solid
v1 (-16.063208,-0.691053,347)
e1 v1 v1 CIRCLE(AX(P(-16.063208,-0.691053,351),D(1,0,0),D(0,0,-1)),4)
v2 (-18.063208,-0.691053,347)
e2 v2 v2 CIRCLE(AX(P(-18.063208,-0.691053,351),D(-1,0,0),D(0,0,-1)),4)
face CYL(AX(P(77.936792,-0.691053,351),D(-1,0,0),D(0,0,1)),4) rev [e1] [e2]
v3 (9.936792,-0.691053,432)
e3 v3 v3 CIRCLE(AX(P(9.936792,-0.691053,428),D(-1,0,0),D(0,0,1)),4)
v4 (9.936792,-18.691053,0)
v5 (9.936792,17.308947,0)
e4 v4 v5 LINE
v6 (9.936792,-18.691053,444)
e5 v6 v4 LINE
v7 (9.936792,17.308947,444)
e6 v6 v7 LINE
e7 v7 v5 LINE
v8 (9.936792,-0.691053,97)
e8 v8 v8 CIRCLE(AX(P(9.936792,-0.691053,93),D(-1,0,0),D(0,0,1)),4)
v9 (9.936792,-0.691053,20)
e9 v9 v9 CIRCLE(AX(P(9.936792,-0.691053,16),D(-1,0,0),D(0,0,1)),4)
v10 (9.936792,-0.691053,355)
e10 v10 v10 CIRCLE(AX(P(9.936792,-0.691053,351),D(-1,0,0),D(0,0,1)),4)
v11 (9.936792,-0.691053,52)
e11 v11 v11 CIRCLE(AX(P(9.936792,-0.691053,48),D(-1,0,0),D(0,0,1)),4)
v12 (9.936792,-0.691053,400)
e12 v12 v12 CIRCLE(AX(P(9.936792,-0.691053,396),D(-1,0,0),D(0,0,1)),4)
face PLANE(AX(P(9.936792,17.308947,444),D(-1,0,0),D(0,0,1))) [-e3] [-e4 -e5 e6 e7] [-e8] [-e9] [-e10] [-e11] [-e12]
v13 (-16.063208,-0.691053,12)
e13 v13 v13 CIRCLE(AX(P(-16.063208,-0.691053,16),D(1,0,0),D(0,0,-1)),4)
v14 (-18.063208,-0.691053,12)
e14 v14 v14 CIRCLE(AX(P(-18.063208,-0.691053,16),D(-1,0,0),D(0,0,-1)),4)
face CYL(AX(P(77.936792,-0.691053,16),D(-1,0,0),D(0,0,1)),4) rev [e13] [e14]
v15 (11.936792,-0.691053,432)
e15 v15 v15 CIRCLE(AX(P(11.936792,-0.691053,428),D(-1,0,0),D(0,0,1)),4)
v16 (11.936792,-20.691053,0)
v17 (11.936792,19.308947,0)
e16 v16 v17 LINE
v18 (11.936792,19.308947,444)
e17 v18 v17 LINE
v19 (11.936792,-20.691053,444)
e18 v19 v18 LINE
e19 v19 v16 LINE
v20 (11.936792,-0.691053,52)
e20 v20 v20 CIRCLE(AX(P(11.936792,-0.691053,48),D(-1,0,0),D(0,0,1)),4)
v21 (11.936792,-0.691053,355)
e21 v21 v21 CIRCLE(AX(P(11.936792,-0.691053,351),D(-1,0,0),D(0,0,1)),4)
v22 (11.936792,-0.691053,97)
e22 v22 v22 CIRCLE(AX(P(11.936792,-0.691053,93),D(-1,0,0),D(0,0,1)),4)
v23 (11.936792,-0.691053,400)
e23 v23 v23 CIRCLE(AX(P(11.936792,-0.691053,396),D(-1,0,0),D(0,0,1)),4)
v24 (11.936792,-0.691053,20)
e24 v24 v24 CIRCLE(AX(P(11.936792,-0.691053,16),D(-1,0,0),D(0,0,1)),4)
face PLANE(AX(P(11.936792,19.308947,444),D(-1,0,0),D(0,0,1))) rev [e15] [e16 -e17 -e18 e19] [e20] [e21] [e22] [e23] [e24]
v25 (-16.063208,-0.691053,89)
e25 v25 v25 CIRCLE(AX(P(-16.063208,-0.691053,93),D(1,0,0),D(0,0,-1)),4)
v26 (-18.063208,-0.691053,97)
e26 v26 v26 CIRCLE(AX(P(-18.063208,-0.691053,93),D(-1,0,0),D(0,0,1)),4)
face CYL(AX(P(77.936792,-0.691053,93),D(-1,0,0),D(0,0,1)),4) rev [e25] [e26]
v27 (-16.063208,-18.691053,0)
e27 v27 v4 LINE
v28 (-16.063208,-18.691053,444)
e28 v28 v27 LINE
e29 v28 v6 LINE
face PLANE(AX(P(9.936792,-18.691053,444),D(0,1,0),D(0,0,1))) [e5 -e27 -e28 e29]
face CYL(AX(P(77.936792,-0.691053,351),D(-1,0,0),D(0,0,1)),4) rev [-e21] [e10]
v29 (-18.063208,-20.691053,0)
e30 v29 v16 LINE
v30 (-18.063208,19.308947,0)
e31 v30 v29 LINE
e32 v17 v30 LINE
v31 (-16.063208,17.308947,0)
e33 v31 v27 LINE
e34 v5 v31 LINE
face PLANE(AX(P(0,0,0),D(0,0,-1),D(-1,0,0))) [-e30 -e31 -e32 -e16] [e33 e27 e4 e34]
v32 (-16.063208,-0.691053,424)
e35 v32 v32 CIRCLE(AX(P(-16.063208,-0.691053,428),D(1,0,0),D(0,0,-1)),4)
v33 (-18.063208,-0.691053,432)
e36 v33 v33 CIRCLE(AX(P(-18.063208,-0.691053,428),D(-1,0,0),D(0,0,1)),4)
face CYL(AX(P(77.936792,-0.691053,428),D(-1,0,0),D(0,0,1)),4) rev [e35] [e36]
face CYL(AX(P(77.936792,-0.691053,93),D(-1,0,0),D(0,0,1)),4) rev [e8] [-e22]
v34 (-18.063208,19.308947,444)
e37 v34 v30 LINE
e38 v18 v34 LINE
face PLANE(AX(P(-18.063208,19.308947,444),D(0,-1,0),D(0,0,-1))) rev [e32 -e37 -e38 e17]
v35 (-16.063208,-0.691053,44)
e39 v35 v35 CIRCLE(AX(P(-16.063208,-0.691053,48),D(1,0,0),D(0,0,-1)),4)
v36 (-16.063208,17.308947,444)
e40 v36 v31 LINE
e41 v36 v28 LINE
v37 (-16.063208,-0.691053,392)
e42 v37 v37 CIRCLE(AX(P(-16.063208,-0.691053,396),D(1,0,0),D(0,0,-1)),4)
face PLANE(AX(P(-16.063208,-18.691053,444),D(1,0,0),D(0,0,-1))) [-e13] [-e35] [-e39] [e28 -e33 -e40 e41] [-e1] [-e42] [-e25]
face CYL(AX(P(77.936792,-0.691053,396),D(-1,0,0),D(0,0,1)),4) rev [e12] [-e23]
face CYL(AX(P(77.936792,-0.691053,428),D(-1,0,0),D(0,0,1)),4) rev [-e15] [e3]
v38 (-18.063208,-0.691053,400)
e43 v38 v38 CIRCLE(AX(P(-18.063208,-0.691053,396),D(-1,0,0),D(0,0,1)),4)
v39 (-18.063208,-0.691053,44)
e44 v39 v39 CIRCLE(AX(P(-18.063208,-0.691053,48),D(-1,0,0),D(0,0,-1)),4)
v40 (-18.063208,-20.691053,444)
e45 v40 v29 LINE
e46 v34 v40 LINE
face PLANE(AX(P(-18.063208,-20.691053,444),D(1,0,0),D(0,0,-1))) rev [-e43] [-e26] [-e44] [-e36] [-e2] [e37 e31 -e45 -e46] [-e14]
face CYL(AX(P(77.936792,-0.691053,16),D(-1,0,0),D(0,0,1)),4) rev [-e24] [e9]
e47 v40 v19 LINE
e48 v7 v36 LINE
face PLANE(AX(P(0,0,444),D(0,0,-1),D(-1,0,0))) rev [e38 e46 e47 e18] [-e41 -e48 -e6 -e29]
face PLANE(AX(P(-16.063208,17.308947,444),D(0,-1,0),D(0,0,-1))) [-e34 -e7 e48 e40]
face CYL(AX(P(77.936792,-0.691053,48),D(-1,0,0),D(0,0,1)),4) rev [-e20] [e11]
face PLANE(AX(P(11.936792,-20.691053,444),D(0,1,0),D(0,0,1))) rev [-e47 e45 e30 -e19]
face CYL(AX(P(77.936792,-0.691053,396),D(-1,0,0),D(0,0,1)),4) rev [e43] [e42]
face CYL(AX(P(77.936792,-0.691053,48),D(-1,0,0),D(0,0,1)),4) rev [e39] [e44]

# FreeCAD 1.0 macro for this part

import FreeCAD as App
import Part
import Sketcher
from FreeCAD import Vector
Q = App.Units.Quantity

doc = App.newDocument("Part")
body = doc.addObject("PartDesign::Body", "Body")

# Sketch on XY plane
sketch1 = doc.addObject("Sketcher::SketchObject", "Sketch")
body.addObject(sketch1)
sketch1.AttachmentSupport = (doc.XY_Plane, [""])
sketch1.MapMode = "FlatFace"
sketch1.addGeometry([
    Part.LineSegment(Vector(-18.063208, 19.308947, 0), Vector(-18.063208, -20.691053, 0)),  # 0
    Part.LineSegment(Vector(-18.063208, -20.691053, 0), Vector(11.936792, -20.691053, 0)),  # 1
    Part.LineSegment(Vector(11.936792, -20.691053, 0), Vector(11.936792, 19.308947, 0)),  # 2
    Part.LineSegment(Vector(11.936792, 19.308947, 0), Vector(-18.063208, 19.308947, 0)),  # 3
    Part.LineSegment(Vector(9.936792, -18.691053, 0), Vector(-16.063208, -18.691053, 0)),  # 4
    Part.LineSegment(Vector(-16.063208, -18.691053, 0), Vector(-16.063208, 17.308947, 0)),  # 5
    Part.LineSegment(Vector(-16.063208, 17.308947, 0), Vector(9.936792, 17.308947, 0)),  # 6
    Part.LineSegment(Vector(9.936792, 17.308947, 0), Vector(9.936792, -18.691053, 0)),  # 7
], False)
sketch1.addConstraint([
    Sketcher.Constraint("Coincident", 0, 2, 1, 1),
    Sketcher.Constraint("Coincident", 1, 2, 2, 1),
    Sketcher.Constraint("Coincident", 2, 2, 3, 1),
    Sketcher.Constraint("Coincident", 3, 2, 0, 1),
    Sketcher.Constraint("Coincident", 4, 2, 5, 1),
    Sketcher.Constraint("Coincident", 5, 2, 6, 1),
    Sketcher.Constraint("Coincident", 6, 2, 7, 1),
    Sketcher.Constraint("Coincident", 7, 2, 4, 1),
    Sketcher.Constraint("Vertical", 0),
    Sketcher.Constraint("Horizontal", 1),
    Sketcher.Constraint("Vertical", 2),
    Sketcher.Constraint("Horizontal", 3),
    Sketcher.Constraint("Horizontal", 4),
    Sketcher.Constraint("Vertical", 5),
    Sketcher.Constraint("Horizontal", 6),
    Sketcher.Constraint("Vertical", 7),
    Sketcher.Constraint("DistanceX", 1, 1, 1, 2, Q("30 mm")),
    Sketcher.Constraint("DistanceX", 4, 2, 4, 1, Q("26 mm")),
    Sketcher.Constraint("DistanceY", 0, 2, 0, 1, Q("40 mm")),
    Sketcher.Constraint("DistanceY", 5, 1, 5, 2, Q("36 mm")),
    Sketcher.Constraint("DistanceX", 0, 2, 4, 2, Q("2 mm")),
    Sketcher.Constraint("DistanceY", 0, 2, 4, 2, Q("2 mm")),
    Sketcher.Constraint("DistanceX", 0, 2, -1, 1, Q("18.063208 mm")),
    Sketcher.Constraint("DistanceY", 0, 2, -1, 1, Q("20.691053 mm")),
])
pad1 = doc.addObject("PartDesign::Pad", "Pad")
body.addObject(pad1)
pad1.Profile = sketch1
pad1.Length = 444

# Sketch on YZ plane
sketch2 = doc.addObject("Sketcher::SketchObject", "Sketch001")
body.addObject(sketch2)
sketch2.AttachmentSupport = (doc.YZ_Plane, [""])
sketch2.MapMode = "FlatFace"
sketch2.AttachmentOffset = App.Placement(Vector(0, 0, -18.063208), App.Rotation())
sketch2.addGeometry([
    Part.Circle(Vector(-0.691053, 396, 0), Vector(0, 0, 1), 4),  # 0
    Part.Circle(Vector(-0.691053, 428, 0), Vector(0, 0, 1), 4),  # 1
    Part.Circle(Vector(-0.691053, 16, 0), Vector(0, 0, 1), 4),  # 2
    Part.Circle(Vector(-0.691053, 48, 0), Vector(0, 0, 1), 4),  # 3
    Part.Circle(Vector(-0.691053, 93, 0), Vector(0, 0, 1), 4),  # 4
    Part.Circle(Vector(-0.691053, 351, 0), Vector(0, 0, 1), 4),  # 5
], False)
sketch2.addConstraint([
    Sketcher.Constraint("Equal", 0, 1),
    Sketcher.Constraint("Equal", 1, 2),
    Sketcher.Constraint("Equal", 2, 3),
    Sketcher.Constraint("Equal", 3, 4),
    Sketcher.Constraint("Equal", 4, 5),
    Sketcher.Constraint("Vertical", 0, 3, 1, 3),
    Sketcher.Constraint("Vertical", 1, 3, 2, 3),
    Sketcher.Constraint("Vertical", 2, 3, 3, 3),
    Sketcher.Constraint("Vertical", 3, 3, 4, 3),
    Sketcher.Constraint("Vertical", 4, 3, 5, 3),
    Sketcher.Constraint("Diameter", 0, Q("8 mm")),
    Sketcher.Constraint("DistanceY", -1, 1, 0, 3, Q("396 mm")),
    Sketcher.Constraint("DistanceY", -1, 1, 1, 3, Q("428 mm")),
    Sketcher.Constraint("DistanceY", -1, 1, 2, 3, Q("16 mm")),
    Sketcher.Constraint("DistanceY", -1, 1, 3, 3, Q("48 mm")),
    Sketcher.Constraint("DistanceY", -1, 1, 4, 3, Q("93 mm")),
    Sketcher.Constraint("DistanceY", -1, 1, 5, 3, Q("351 mm")),
    Sketcher.Constraint("DistanceX", 0, 3, -1, 1, Q("0.691053 mm")),
])
pocket1 = doc.addObject("PartDesign::Pocket", "Pocket")
body.addObject(pocket1)
pocket1.Profile = sketch2
pocket1.Length = 96
pocket1.Reversed = True

doc.recompute()
